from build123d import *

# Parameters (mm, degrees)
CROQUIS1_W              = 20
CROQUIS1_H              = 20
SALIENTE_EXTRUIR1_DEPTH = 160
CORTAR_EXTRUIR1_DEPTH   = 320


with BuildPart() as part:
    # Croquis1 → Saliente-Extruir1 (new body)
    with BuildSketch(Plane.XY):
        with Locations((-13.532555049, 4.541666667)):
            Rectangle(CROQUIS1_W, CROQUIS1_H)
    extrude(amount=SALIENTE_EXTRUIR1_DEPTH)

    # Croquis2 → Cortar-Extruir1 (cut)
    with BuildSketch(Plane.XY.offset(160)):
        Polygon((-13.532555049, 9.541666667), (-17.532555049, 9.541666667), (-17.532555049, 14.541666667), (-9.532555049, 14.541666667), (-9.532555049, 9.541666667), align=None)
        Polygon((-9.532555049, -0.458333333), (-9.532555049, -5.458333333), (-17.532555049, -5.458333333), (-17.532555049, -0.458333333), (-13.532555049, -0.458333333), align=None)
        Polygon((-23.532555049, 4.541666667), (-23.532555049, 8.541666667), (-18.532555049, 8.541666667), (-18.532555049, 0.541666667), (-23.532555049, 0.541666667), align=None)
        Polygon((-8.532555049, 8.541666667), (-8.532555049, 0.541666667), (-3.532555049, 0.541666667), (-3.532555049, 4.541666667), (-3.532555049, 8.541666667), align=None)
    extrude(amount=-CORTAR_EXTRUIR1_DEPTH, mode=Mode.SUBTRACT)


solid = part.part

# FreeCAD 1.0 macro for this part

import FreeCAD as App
import Part
import Sketcher

V = App.Vector
Q = App.Units.Quantity

doc = App.newDocument("Part")
body = doc.addObject("PartDesign::Body", "Body")

# Sketch on XY plane
sketch1 = doc.addObject("Sketcher::SketchObject", "Sketch")
body.addObject(sketch1)
sketch1.AttachmentSupport = (doc.XY_Plane, [""])
sketch1.MapMode = "FlatFace"
sketch1.addGeometry([
    Part.LineSegment(V(-24, 15, 0), V(-24, -5, 0)),
    Part.LineSegment(V(-24, -5, 0), V(-4, -5, 0)),
    Part.LineSegment(V(-4, -5, 0), V(-4, 15, 0)),
    Part.LineSegment(V(-4, 15, 0), V(-24, 15, 0)),
], False)
sketch1.addConstraint([
    Sketcher.Constraint("Coincident", 0, 2, 1, 1),
    Sketcher.Constraint("Coincident", 1, 2, 2, 1),
    Sketcher.Constraint("Coincident", 2, 2, 3, 1),
    Sketcher.Constraint("Coincident", 3, 2, 0, 1),
    Sketcher.Constraint("Vertical", 0),
    Sketcher.Constraint("Horizontal", 1),
    Sketcher.Constraint("Vertical", 2),
    Sketcher.Constraint("Horizontal", 3),
    Sketcher.Constraint("Equal", 3, 0),
    Sketcher.Constraint("DistanceX", 1, 1, 1, 2, Q("20 mm")),
    Sketcher.Constraint("DistanceX", 0, 2, -1, 1, Q("23.532555 mm")),
    Sketcher.Constraint("DistanceY", 0, 2, -1, 1, Q("5.458333 mm")),
])
pad1 = doc.addObject("PartDesign::Pad", "Pad")
body.addObject(pad1)
pad1.Profile = sketch1
pad1.Length = 160

# Sketch on XY plane
sketch2 = doc.addObject("Sketcher::SketchObject", "Sketch001")
body.addObject(sketch2)
sketch2.AttachmentSupport = (doc.XY_Plane, [""])
sketch2.MapMode = "FlatFace"
sketch2.AttachmentOffset = App.Placement(V(0, 0, 160), App.Rotation())
sketch2.addGeometry([
    Part.LineSegment(V(-18, 10, 0), V(-10, 10, 0)),  # 0
    Part.LineSegment(V(-10, 10, 0), V(-10, 15, 0)),  # 1
    Part.LineSegment(V(-10, 15, 0), V(-18, 15, 0)),  # 2
    Part.LineSegment(V(-18, 15, 0), V(-18, 10, 0)),  # 3
    Part.LineSegment(V(-10, -5, 0), V(-10, 0, 0)),  # 4
    Part.LineSegment(V(-10, 0, 0), V(-18, 0, 0)),  # 5
    Part.LineSegment(V(-18, 0, 0), V(-18, -5, 0)),  # 6
    Part.LineSegment(V(-18, -5, 0), V(-10, -5, 0)),  # 7
    Part.LineSegment(V(-24, 9, 0), V(-24, 1, 0)),  # 8
    Part.LineSegment(V(-24, 1, 0), V(-19, 1, 0)),  # 9
    Part.LineSegment(V(-19, 1, 0), V(-19, 9, 0)),  # 10
    Part.LineSegment(V(-19, 9, 0), V(-24, 9, 0)),  # 11
    Part.LineSegment(V(-9, 9, 0), V(-9, 1, 0)),  # 12
    Part.LineSegment(V(-9, 1, 0), V(-4, 1, 0)),  # 13
    Part.LineSegment(V(-4, 1, 0), V(-4, 9, 0)),  # 14
    Part.LineSegment(V(-4, 9, 0), V(-9, 9, 0)),  # 15
], False)
sketch2.addConstraint([
    Sketcher.Constraint("Coincident", 0, 2, 1, 1),
    Sketcher.Constraint("Coincident", 1, 2, 2, 1),
    Sketcher.Constraint("Coincident", 2, 2, 3, 1),
    Sketcher.Constraint("Coincident", 3, 2, 0, 1),
    Sketcher.Constraint("Coincident", 4, 2, 5, 1),
    Sketcher.Constraint("Coincident", 5, 2, 6, 1),
    Sketcher.Constraint("Coincident", 6, 2, 7, 1),
    Sketcher.Constraint("Coincident", 7, 2, 4, 1),
    Sketcher.Constraint("Coincident", 8, 2, 9, 1),
    Sketcher.Constraint("Coincident", 9, 2, 10, 1),
    Sketcher.Constraint("Coincident", 10, 2, 11, 1),
    Sketcher.Constraint("Coincident", 11, 2, 8, 1),
    Sketcher.Constraint("Coincident", 12, 2, 13, 1),
    Sketcher.Constraint("Coincident", 13, 2, 14, 1),
    Sketcher.Constraint("Coincident", 14, 2, 15, 1),
    Sketcher.Constraint("Coincident", 15, 2, 12, 1),
    Sketcher.Constraint("Horizontal", 0),
    Sketcher.Constraint("Vertical", 1),
    Sketcher.Constraint("Horizontal", 2),
    Sketcher.Constraint("Vertical", 3),
    Sketcher.Constraint("Vertical", 4),
    Sketcher.Constraint("Horizontal", 5),
    Sketcher.Constraint("Vertical", 6),
    Sketcher.Constraint("Horizontal", 7),
    Sketcher.Constraint("Vertical", 8),
    Sketcher.Constraint("Horizontal", 9),
    Sketcher.Constraint("Vertical", 10),
    Sketcher.Constraint("Horizontal", 11),
    Sketcher.Constraint("Vertical", 12),
    Sketcher.Constraint("Horizontal", 13),
    Sketcher.Constraint("Vertical", 14),
    Sketcher.Constraint("Horizontal", 15),
    Sketcher.Constraint("Horizontal", 9, 2, 12, 2),
    Sketcher.Constraint("Horizontal", 11, 2, 14, 2),
    Sketcher.Constraint("Vertical", 1, 2, 4, 2),
    Sketcher.Constraint("Vertical", 3, 2, 5, 2),
    Sketcher.Constraint("Equal", 11, 13),
    Sketcher.Constraint("Equal", 15, 1),
    Sketcher.Constraint("Equal", 3, 4),
    Sketcher.Constraint("Equal", 7, 8),
    Sketcher.Constraint("DistanceX", 0, 1, 0, 2, Q("8 mm")),
    Sketcher.Constraint("DistanceX", 9, 1, 9, 2, Q("5 mm")),
    Sketcher.Constraint("DistanceY", 4, 2, 0, 2, Q("10 mm")),
    Sketcher.Constraint("DistanceX", 8, 2, 5, 2, Q("6 mm")),
    Sketcher.Constraint("DistanceY", 5, 2, 8, 2, Q("1 mm")),
    Sketcher.Constraint("DistanceX", 4, 2, 12, 2, Q("1 mm")),
    Sketcher.Constraint("DistanceX", 0, 2, -1, 1, Q("9.532555 mm")),
    Sketcher.Constraint("DistanceY", -1, 1, 0, 2, Q("9.541667 mm")),
])
pocket1 = doc.addObject("PartDesign::Pocket", "Pocket")
body.addObject(pocket1)
pocket1.Profile = sketch2
pocket1.Length = 320

doc.recompute()
